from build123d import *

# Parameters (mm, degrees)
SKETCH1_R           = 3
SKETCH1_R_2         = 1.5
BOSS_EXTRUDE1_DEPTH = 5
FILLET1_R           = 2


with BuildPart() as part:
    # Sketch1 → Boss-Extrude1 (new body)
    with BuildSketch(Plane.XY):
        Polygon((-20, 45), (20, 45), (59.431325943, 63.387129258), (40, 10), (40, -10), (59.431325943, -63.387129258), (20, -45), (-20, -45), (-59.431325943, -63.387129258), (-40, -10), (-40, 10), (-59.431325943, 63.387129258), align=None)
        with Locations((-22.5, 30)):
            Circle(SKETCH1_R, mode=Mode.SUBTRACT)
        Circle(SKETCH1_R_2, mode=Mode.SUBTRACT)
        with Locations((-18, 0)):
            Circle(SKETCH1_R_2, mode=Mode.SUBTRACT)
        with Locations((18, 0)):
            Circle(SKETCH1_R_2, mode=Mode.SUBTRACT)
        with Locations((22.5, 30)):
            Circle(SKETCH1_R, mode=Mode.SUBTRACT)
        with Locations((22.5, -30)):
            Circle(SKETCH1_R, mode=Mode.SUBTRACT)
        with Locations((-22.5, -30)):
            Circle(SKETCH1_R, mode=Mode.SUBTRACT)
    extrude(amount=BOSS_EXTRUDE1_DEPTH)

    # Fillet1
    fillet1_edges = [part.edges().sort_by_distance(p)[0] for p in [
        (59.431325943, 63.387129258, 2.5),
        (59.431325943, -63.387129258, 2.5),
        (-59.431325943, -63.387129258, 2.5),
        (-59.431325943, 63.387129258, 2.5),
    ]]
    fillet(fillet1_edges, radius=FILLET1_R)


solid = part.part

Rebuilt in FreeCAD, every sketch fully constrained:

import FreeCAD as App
import Part
import Sketcher
from FreeCAD import Vector
Q = App.Units.Quantity


def edges_at(feature, points):
    """Names of the edges that pass closest to the given points."""
    edges = feature.Shape.Edges
    near = lambda p: min(range(len(edges)), key=lambda i: edges[i].distToShape(Part.Vertex(*p))[0])
    return sorted({f"Edge{near(p) + 1}" for p in points})


def add_polygon(sketch, points):
    """Adds a closed chain of lines whose ends are joined by coincident constraints."""
    first, n = sketch.GeometryCount, len(points)
    for a, b in zip(points, points[1:] + points[:1]):
        sketch.addGeometry(Part.LineSegment(App.Vector(*a, 0), App.Vector(*b, 0)), False)
    for i in range(n):
        sketch.addConstraint(Sketcher.Constraint("Coincident", first + i, 2, first + (i + 1) % n, 1))

doc = App.newDocument("Part")
body = doc.addObject("PartDesign::Body", "Body")

# Sketch on XY plane
sketch1 = body.newObject("Sketcher::SketchObject", "Sketch")
sketch1.AttachmentSupport = (doc.getObject("XY_Plane"), [""])
sketch1.MapMode = "FlatFace"
add_polygon(sketch1, [(20, 45), (-20, 45), (-59.4, 63.4), (-40, 10), (-40, -10), (-59.4, -63.4), (-20, -45), (20, -45), (59.4, -63.4), (40, -10), (40, 10), (59.4, 63.4)])  # lines 0-11
sketch1.addGeometry(Part.Circle(Vector(22.5, -30, 0), Vector(0, 0, 1), 3), False)  # 12
sketch1.addGeometry(Part.Circle(Vector(-22.5, -30, 0), Vector(0, 0, 1), 3), False)  # 13
sketch1.addGeometry(Part.Circle(Vector(18, 0, 0), Vector(0, 0, 1), 1.5), False)  # 14
sketch1.addGeometry(Part.Circle(Vector(22.5, 30, 0), Vector(0, 0, 1), 3), False)  # 15
sketch1.addGeometry(Part.Circle(Vector(0, 0, 0), Vector(0, 0, 1), 1.5), False)  # 16
sketch1.addGeometry(Part.Circle(Vector(-18, 0, 0), Vector(0, 0, 1), 1.5), False)  # 17
sketch1.addGeometry(Part.Circle(Vector(-22.5, 30, 0), Vector(0, 0, 1), 3), False)  # 18
sketch1.addConstraint([
    Sketcher.Constraint("Horizontal", 0),
    Sketcher.Constraint("Vertical", 3),
    Sketcher.Constraint("Horizontal", 6),
    Sketcher.Constraint("Vertical", 9),
    Sketcher.Constraint("Coincident", 16, 3, -1, 1),
    Sketcher.Constraint("Equal", 12, 13),
    Sketcher.Constraint("Equal", 13, 15),
    Sketcher.Constraint("Equal", 14, 16),
    Sketcher.Constraint("Equal", 16, 17),
    Sketcher.Constraint("Equal", 15, 18),
    Sketcher.Constraint("Symmetric", 13, 3, 15, 3, -1, 1),
    Sketcher.Constraint("Symmetric", 14, 3, 17, 3, -1, 1),
    Sketcher.Constraint("Symmetric", 12, 3, 18, 3, -1, 1),
    Sketcher.Constraint("Symmetric", 0, 2, 6, 2, -1, 1),
    Sketcher.Constraint("Symmetric", 1, 2, 7, 2, -1, 1),
    Sketcher.Constraint("Symmetric", 2, 2, 8, 2, -1, 1),
    Sketcher.Constraint("Symmetric", 4, 2, 10, 2, -1, 1),
    Sketcher.Constraint("Symmetric", 12, 3, 13, 3, -2),
    Sketcher.Constraint("Symmetric", 4, 2, 7, 2, -2),
    Sketcher.Constraint("PointOnObject", 14, 3, -1),
    Sketcher.Constraint("Parallel", 4, 10),
    Sketcher.Constraint("Parallel", 5, 11),
    Sketcher.Constraint("Horizontal", 3, 2, 8, 2),
    Sketcher.Constraint("Vertical", 0, 2, 5, 2),
    Sketcher.Constraint("Diameter", 12, Q("6 mm")),
    Sketcher.Constraint("Diameter", 14, Q("3 mm")),
    Sketcher.Constraint("DistanceX", 0, 2, 0, 1, Q("40 mm")),
    Sketcher.Constraint("DistanceY", 3, 2, 3, 1, Q("20 mm")),
    Sketcher.Constraint("Angle", 1, Q("155 deg")),
    Sketcher.Constraint("Angle", 2, Q("-70 deg")),
    Sketcher.Constraint("DistanceY", 12, 3, -1, 1, Q("30 mm")),
    Sketcher.Constraint("DistanceX", -1, 1, 14, 3, Q("18 mm")),
    Sketcher.Constraint("DistanceY", -1, 1, 0, 2, Q("45 mm")),
    Sketcher.Constraint("DistanceX", 2, 2, -1, 1, Q("40 mm")),
    Sketcher.Constraint("DistanceX", 13, 3, 12, 3, Q("45 mm")),
])
pad1 = body.newObject("PartDesign::Pad", "Pad")
pad1.Profile = sketch1
pad1.Length = 5
doc.recompute()

fillet = body.newObject("PartDesign::Fillet", "Fillet")
fillet.Base = (pad1, edges_at(pad1, [
    (59.431, 63.387, 2.5),
    (59.431, -63.387, 2.5),
    (-59.431, -63.387, 2.5),
    (-59.431, 63.387, 2.5),
]))
fillet.Radius = 2

doc.recompute()
